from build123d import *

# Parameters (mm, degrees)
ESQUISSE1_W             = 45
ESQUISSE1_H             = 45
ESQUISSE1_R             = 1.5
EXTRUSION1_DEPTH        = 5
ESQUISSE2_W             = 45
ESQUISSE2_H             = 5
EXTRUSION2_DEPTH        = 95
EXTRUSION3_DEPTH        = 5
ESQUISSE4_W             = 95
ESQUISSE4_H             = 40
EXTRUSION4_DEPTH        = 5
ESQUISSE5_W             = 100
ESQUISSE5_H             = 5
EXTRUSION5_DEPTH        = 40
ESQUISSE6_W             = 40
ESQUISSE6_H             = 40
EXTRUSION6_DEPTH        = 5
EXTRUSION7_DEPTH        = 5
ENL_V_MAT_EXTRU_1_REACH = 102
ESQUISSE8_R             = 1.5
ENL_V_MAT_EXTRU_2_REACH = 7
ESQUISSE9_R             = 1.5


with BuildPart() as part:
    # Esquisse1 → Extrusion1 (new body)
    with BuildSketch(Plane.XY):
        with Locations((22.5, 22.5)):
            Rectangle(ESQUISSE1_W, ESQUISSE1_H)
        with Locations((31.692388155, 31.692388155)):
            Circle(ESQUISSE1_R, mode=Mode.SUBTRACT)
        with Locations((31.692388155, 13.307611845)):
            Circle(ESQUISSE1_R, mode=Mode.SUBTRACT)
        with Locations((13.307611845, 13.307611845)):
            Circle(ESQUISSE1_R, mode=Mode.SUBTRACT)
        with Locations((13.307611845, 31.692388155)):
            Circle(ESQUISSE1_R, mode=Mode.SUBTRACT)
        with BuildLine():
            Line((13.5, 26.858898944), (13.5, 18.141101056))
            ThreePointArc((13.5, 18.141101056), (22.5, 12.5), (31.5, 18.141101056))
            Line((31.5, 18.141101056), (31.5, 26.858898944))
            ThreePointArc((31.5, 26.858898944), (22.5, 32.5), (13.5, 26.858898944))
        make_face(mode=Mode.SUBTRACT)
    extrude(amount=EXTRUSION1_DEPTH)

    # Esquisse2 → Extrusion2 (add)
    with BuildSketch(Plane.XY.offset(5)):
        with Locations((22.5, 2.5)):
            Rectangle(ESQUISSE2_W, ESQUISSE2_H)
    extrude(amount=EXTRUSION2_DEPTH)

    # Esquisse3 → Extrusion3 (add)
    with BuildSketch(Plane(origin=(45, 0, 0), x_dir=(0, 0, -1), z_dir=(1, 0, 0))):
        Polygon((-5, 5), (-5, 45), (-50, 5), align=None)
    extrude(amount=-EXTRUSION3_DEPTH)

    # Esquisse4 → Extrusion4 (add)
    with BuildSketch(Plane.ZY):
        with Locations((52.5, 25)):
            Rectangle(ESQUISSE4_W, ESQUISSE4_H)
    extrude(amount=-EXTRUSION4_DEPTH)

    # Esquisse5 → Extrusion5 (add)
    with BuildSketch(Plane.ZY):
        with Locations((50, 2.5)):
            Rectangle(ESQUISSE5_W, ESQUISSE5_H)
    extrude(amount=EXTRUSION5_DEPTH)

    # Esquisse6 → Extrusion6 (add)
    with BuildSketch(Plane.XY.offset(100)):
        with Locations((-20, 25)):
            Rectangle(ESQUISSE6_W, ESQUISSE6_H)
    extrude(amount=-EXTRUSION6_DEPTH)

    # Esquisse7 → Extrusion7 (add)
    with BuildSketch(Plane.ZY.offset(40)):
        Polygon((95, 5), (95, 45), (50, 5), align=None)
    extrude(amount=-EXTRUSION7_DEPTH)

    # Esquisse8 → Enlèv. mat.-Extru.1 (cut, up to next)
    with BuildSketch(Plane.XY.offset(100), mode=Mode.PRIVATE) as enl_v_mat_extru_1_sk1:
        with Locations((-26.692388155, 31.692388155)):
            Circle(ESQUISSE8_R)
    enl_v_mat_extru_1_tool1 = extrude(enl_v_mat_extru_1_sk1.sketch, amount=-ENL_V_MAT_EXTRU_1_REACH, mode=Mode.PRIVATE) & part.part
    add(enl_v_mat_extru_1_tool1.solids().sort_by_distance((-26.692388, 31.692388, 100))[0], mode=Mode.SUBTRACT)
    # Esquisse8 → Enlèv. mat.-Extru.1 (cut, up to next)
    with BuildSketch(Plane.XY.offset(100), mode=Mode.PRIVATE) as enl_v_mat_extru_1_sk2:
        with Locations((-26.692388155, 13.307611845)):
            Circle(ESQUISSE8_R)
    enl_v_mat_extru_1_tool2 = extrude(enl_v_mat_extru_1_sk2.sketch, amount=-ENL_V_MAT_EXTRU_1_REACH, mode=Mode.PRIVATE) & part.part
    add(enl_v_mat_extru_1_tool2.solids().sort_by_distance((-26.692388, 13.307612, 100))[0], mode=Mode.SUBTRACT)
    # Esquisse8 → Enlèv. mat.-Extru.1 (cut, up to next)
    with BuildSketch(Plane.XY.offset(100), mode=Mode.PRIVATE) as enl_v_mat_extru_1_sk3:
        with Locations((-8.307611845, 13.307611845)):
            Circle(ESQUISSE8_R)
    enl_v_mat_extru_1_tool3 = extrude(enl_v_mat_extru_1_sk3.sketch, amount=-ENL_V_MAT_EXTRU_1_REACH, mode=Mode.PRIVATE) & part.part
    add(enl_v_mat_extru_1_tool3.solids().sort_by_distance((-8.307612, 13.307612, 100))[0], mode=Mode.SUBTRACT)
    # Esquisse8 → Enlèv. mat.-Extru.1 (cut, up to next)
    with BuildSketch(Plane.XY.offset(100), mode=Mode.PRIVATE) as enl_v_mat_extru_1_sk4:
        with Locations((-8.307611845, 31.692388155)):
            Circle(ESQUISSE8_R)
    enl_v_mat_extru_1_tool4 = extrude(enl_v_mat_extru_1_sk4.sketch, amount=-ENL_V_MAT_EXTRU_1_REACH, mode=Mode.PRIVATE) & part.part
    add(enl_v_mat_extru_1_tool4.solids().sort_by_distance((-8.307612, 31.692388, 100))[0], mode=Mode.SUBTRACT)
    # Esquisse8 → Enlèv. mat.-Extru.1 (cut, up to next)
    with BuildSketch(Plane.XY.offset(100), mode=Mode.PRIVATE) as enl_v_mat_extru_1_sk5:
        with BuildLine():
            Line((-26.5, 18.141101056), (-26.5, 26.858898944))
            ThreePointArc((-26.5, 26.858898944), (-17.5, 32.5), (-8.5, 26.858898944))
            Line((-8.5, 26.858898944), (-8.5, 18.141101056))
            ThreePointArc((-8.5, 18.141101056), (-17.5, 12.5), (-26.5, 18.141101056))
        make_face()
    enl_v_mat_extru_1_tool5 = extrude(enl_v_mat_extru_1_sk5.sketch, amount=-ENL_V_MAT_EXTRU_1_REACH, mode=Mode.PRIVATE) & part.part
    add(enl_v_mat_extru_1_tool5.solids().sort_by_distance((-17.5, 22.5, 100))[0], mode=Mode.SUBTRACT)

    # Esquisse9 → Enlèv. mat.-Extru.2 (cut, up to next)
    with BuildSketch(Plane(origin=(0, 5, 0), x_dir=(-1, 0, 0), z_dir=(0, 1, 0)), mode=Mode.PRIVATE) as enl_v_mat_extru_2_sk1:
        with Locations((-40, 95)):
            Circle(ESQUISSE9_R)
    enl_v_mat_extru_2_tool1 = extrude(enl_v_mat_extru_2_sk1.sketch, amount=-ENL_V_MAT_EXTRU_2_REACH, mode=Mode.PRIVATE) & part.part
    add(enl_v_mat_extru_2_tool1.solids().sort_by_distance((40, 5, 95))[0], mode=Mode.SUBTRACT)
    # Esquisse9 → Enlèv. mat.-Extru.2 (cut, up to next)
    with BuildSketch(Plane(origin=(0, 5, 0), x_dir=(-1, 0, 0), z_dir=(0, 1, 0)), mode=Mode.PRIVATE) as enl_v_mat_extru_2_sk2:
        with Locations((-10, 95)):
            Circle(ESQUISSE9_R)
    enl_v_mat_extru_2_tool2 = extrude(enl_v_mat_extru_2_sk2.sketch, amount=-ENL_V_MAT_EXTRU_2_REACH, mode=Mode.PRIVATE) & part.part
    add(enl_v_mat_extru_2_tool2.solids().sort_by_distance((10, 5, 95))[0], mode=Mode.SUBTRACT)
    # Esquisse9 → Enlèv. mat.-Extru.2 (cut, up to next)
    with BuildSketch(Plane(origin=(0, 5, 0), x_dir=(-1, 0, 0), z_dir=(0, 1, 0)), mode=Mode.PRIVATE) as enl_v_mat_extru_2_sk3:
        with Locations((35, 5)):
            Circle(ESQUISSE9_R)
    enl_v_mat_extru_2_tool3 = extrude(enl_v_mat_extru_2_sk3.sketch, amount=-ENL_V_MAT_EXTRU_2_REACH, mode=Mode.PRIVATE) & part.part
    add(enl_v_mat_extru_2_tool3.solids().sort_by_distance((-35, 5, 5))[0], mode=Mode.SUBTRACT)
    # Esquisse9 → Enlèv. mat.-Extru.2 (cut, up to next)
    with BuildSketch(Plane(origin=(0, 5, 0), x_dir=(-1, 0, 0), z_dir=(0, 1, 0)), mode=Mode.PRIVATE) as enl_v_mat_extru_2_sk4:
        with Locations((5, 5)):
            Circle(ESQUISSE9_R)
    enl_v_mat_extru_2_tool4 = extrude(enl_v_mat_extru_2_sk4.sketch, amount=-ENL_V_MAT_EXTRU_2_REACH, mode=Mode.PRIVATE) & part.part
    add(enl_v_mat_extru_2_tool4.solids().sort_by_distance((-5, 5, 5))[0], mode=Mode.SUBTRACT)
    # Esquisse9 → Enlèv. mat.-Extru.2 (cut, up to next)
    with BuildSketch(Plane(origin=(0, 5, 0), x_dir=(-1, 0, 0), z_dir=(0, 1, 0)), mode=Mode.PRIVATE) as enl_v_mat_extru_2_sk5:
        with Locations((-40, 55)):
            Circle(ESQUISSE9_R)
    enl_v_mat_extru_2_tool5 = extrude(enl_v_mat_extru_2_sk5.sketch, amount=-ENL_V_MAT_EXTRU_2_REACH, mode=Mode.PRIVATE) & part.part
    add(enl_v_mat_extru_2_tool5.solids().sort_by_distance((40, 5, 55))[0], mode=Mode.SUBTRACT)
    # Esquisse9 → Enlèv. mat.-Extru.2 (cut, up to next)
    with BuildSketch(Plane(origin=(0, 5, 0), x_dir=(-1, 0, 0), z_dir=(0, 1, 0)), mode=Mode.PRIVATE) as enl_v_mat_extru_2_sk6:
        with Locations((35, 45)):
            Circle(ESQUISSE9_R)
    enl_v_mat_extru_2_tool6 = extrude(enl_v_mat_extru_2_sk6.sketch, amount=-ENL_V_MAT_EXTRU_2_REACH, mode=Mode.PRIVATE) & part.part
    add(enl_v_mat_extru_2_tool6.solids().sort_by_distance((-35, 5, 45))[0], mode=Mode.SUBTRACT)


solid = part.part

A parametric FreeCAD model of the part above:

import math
import FreeCAD as App
import Part
import Sketcher
from FreeCAD import Vector
Q = App.Units.Quantity


def add_polygon(sketch, points):
    """Adds a closed chain of lines whose ends are joined by coincident constraints."""
    first, n = sketch.GeometryCount, len(points)
    for a, b in zip(points, points[1:] + points[:1]):
        sketch.addGeometry(Part.LineSegment(App.Vector(*a, 0), App.Vector(*b, 0)), False)
    for i in range(n):
        sketch.addConstraint(Sketcher.Constraint("Coincident", first + i, 2, first + (i + 1) % n, 1))

doc = App.newDocument("Part")
params = doc.addObject("Spreadsheet::Sheet", "Params")
for row, (alias, value) in enumerate([
    ("sketch1_diameter", "3 mm"),
    ("sketch1_radius", "10 mm"),
    ("sketch1_width", "45 mm"),
    ("pad1_length", "5 mm"),
    ("sketch2_width", "45 mm"),
    ("sketch2_height", "5 mm"),
    ("pad2_length", "95 mm"),
    ("sketch3_width", "40 mm"),
    ("sketch3_height", "45 mm"),
    ("pad3_length", "5 mm"),
    ("sketch4_width", "40 mm"),
    ("sketch4_height", "95 mm"),
    ("pad4_length", "5 mm"),
    ("sketch5_width", "5 mm"),
    ("sketch5_height", "100 mm"),
    ("pad5_length", "40 mm"),
    ("sketch6_width", "40 mm"),
    ("pad6_length", "5 mm"),
    ("sketch7_width", "40 mm"),
    ("sketch7_height", "45 mm"),
    ("pad7_length", "5 mm"),
    ("sketch8_diameter", "3 mm"),
    ("sketch9_diameter", "3 mm"),
    ("sketch10_diameter", "3 mm"),
    ("sketch11_diameter", "3 mm"),
    ("sketch12_radius", "10 mm"),
    ("sketch13_diameter", "3 mm"),
    ("sketch14_diameter", "3 mm"),
    ("sketch15_diameter", "3 mm"),
    ("sketch16_diameter", "3 mm"),
    ("sketch17_diameter", "3 mm"),
    ("sketch18_diameter", "3 mm"),
], start=1):
    params.set(f"A{row}", alias)
    params.set(f"B{row}", "=" + value)
    params.setAlias(f"B{row}", alias)

body = doc.addObject("PartDesign::Body", "Body")

# Sketch on XY plane
sketch1 = body.newObject("Sketcher::SketchObject", "Sketch")
sketch1.AttachmentSupport = (doc.getObject("XY_Plane"), [""])
sketch1.MapMode = "FlatFace"
add_polygon(sketch1, [(0, 45), (0, 0), (45, 0), (45, 45)])  # lines 0-3
sketch1.addGeometry(Part.Circle(Vector(13.3, 13.3, 0), Vector(0, 0, 1), 1.5), False)  # 4
sketch1.addGeometry(Part.Circle(Vector(31.7, 13.3, 0), Vector(0, 0, 1), 1.5), False)  # 5
sketch1.addGeometry(Part.Circle(Vector(13.3, 31.7, 0), Vector(0, 0, 1), 1.5), False)  # 6
sketch1.addGeometry(Part.LineSegment(Vector(13.5, 18.1, 0), Vector(13.5, 26.9, 0)), False)  # 7
sketch1.addGeometry(Part.ArcOfCircle(Part.Circle(Vector(22.5, 22.5, 0), Vector(0, 0, 1), 10), math.radians(26), math.radians(154)), False)  # 8
sketch1.addGeometry(Part.LineSegment(Vector(31.5, 26.9, 0), Vector(31.5, 18.1, 0)), False)  # 9
sketch1.addGeometry(Part.ArcOfCircle(Part.Circle(Vector(22.5, 22.5, 0), Vector(0, 0, 1), 10), math.radians(-154), math.radians(-26)), False)  # 10
sketch1.addGeometry(Part.Circle(Vector(31.7, 31.7, 0), Vector(0, 0, 1), 1.5), False)  # 11
sketch1.addConstraint([
    Sketcher.Constraint("Coincident", 7, 2, 8, 2),
    Sketcher.Constraint("Coincident", 8, 1, 9, 1),
    Sketcher.Constraint("Coincident", 9, 2, 10, 2),
    Sketcher.Constraint("Coincident", 10, 1, 7, 1),
    Sketcher.Constraint("Vertical", 0),
    Sketcher.Constraint("Horizontal", 1),
    Sketcher.Constraint("Vertical", 2),
    Sketcher.Constraint("Horizontal", 3),
    Sketcher.Constraint("Vertical", 7),
    Sketcher.Constraint("Vertical", 9),
    Sketcher.Constraint("Coincident", 0, 2, -1, 1),
    Sketcher.Constraint("Coincident", 10, 3, 8, 3),
    Sketcher.Constraint("Equal", 4, 5),
    Sketcher.Constraint("Equal", 5, 6),
    Sketcher.Constraint("Equal", 8, 10),
    Sketcher.Constraint("Equal", 6, 11),
    Sketcher.Constraint("Horizontal", 4, 3, 5, 3),
    Sketcher.Constraint("Horizontal", 6, 3, 11, 3),
    Sketcher.Constraint("Horizontal", 7, 2, 8, 1),
    Sketcher.Constraint("Vertical", 4, 3, 6, 3),
    Sketcher.Constraint("Vertical", 5, 3, 11, 3),
    Sketcher.Constraint("Equal", 3, 0),
    Sketcher.Constraint("Diameter", 4, Q("3 mm")),
    Sketcher.Constraint("Radius", 8, Q("10 mm")),
    Sketcher.Constraint("DistanceX", 1, 1, 1, 2, Q("45 mm")),
    Sketcher.Constraint("DistanceX", 7, 2, 8, 3, Q("9 mm")),
    Sketcher.Constraint("DistanceX", -1, 1, 8, 3, Q("22.5 mm")),
    Sketcher.Constraint("DistanceY", -1, 1, 8, 3, Q("22.5 mm")),
    Sketcher.Constraint("DistanceX", -1, 1, 4, 3, Q("13.307612 mm")),
    Sketcher.Constraint("DistanceY", -1, 1, 4, 3, Q("13.307612 mm")),
    Sketcher.Constraint("DistanceX", -1, 1, 5, 3, Q("31.692388 mm")),
    Sketcher.Constraint("DistanceY", -1, 1, 6, 3, Q("31.692388 mm")),
])
sketch1.setExpression("Constraints[26]", "Params.sketch1_diameter")
sketch1.setExpression("Constraints[27]", "Params.sketch1_radius")
sketch1.setExpression("Constraints[28]", "Params.sketch1_width")
pad1 = body.newObject("PartDesign::Pad", "Pad")
pad1.Profile = sketch1
pad1.setExpression("Length", "Params.pad1_length")

# Sketch on XY plane
sketch2 = body.newObject("Sketcher::SketchObject", "Sketch001")
sketch2.AttachmentSupport = (doc.getObject("XY_Plane"), [""])
sketch2.MapMode = "FlatFace"
sketch2.AttachmentOffset = App.Placement(Vector(0, 0, 5), App.Rotation())
add_polygon(sketch2, [(0, 5), (0, 0), (45, 0), (45, 5)])  # lines 0-3
sketch2.addConstraint([
    Sketcher.Constraint("Vertical", 0),
    Sketcher.Constraint("Horizontal", 1),
    Sketcher.Constraint("Vertical", 2),
    Sketcher.Constraint("Horizontal", 3),
    Sketcher.Constraint("Coincident", 0, 2, -1, 1),
    Sketcher.Constraint("DistanceX", 1, 1, 1, 2, Q("45 mm")),
    Sketcher.Constraint("DistanceY", 0, 2, 0, 1, Q("5 mm")),
])
sketch2.setExpression("Constraints[9]", "Params.sketch2_width")
sketch2.setExpression("Constraints[10]", "Params.sketch2_height")
pad2 = body.newObject("PartDesign::Pad", "Pad001")
pad2.Profile = sketch2
pad2.setExpression("Length", "Params.pad2_length")

# Sketch on YZ plane
sketch3 = body.newObject("Sketcher::SketchObject", "Sketch002")
sketch3.AttachmentSupport = (doc.getObject("YZ_Plane"), [""])
sketch3.MapMode = "FlatFace"
sketch3.AttachmentOffset = App.Placement(Vector(0, 0, 45), App.Rotation())
add_polygon(sketch3, [(5, 5), (45, 5), (5, 50)])  # lines 0-2
sketch3.addConstraint([
    Sketcher.Constraint("Horizontal", 0),
    Sketcher.Constraint("Vertical", 2),
    Sketcher.Constraint("DistanceX", 0, 1, 0, 2, Q("40 mm")),
    Sketcher.Constraint("DistanceY", 2, 2, 2, 1, Q("45 mm")),
    Sketcher.Constraint("DistanceX", -1, 1, 0, 2, Q("45 mm")),
    Sketcher.Constraint("DistanceY", -1, 1, 0, 2, Q("5 mm")),
])
sketch3.setExpression("Constraints[5]", "Params.sketch3_width")
sketch3.setExpression("Constraints[6]", "Params.sketch3_height")
pad3 = body.newObject("PartDesign::Pad", "Pad002")
pad3.Profile = sketch3
pad3.setExpression("Length", "Params.pad3_length")
pad3.Reversed = True

# Sketch on YZ plane
sketch4 = body.newObject("Sketcher::SketchObject", "Sketch003")
sketch4.AttachmentSupport = (doc.getObject("YZ_Plane"), [""])
sketch4.MapMode = "FlatFace"
add_polygon(sketch4, [(45, 5), (5, 5), (5, 100), (45, 100)])  # lines 0-3
sketch4.addConstraint([
    Sketcher.Constraint("Horizontal", 0),
    Sketcher.Constraint("Vertical", 1),
    Sketcher.Constraint("Horizontal", 2),
    Sketcher.Constraint("Vertical", 3),
    Sketcher.Constraint("DistanceX", 0, 2, 0, 1, Q("40 mm")),
    Sketcher.Constraint("DistanceY", 1, 1, 1, 2, Q("95 mm")),
    Sketcher.Constraint("DistanceX", -1, 1, 0, 2, Q("5 mm")),
    Sketcher.Constraint("DistanceY", -1, 1, 0, 2, Q("5 mm")),
])
sketch4.setExpression("Constraints[8]", "Params.sketch4_width")
sketch4.setExpression("Constraints[9]", "Params.sketch4_height")
pad4 = body.newObject("PartDesign::Pad", "Pad003")
pad4.Profile = sketch4
pad4.setExpression("Length", "Params.pad4_length")

# Sketch on YZ plane
sketch5 = body.newObject("Sketcher::SketchObject", "Sketch004")
sketch5.AttachmentSupport = (doc.getObject("YZ_Plane"), [""])
sketch5.MapMode = "FlatFace"
add_polygon(sketch5, [(5, 0), (0, 0), (0, 100), (5, 100)])  # lines 0-3
sketch5.addConstraint([
    Sketcher.Constraint("Horizontal", 0),
    Sketcher.Constraint("Vertical", 1),
    Sketcher.Constraint("Horizontal", 2),
    Sketcher.Constraint("Vertical", 3),
    Sketcher.Constraint("Coincident", 0, 2, -1, 1),
    Sketcher.Constraint("DistanceX", 0, 2, 0, 1, Q("5 mm")),
    Sketcher.Constraint("DistanceY", 1, 1, 1, 2, Q("100 mm")),
])
sketch5.setExpression("Constraints[9]", "Params.sketch5_width")
sketch5.setExpression("Constraints[10]", "Params.sketch5_height")
pad5 = body.newObject("PartDesign::Pad", "Pad004")
pad5.Profile = sketch5
pad5.setExpression("Length", "Params.pad5_length")
pad5.Reversed = True

# Sketch on XY plane
sketch6 = body.newObject("Sketcher::SketchObject", "Sketch005")
sketch6.AttachmentSupport = (doc.getObject("XY_Plane"), [""])
sketch6.MapMode = "FlatFace"
sketch6.AttachmentOffset = App.Placement(Vector(0, 0, 100), App.Rotation())
add_polygon(sketch6, [(-40, 45), (-40, 5), (0, 5), (0, 45)])  # lines 0-3
sketch6.addConstraint([
    Sketcher.Constraint("Vertical", 0),
    Sketcher.Constraint("Horizontal", 1),
    Sketcher.Constraint("Vertical", 2),
    Sketcher.Constraint("Horizontal", 3),
    Sketcher.Constraint("PointOnObject", 1, 2, -2),
    Sketcher.Constraint("Equal", 3, 0),
    Sketcher.Constraint("DistanceX", 1, 1, 1, 2, Q("40 mm")),
    Sketcher.Constraint("DistanceY", -1, 1, 0, 2, Q("5 mm")),
])
sketch6.setExpression("Constraints[10]", "Params.sketch6_width")
pad6 = body.newObject("PartDesign::Pad", "Pad005")
pad6.Profile = sketch6
pad6.setExpression("Length", "Params.pad6_length")
pad6.Reversed = True

# Sketch on YZ plane
sketch7 = body.newObject("Sketcher::SketchObject", "Sketch006")
sketch7.AttachmentSupport = (doc.getObject("YZ_Plane"), [""])
sketch7.MapMode = "FlatFace"
sketch7.AttachmentOffset = App.Placement(Vector(0, 0, -40), App.Rotation())
add_polygon(sketch7, [(5, 95), (45, 95), (5, 50)])  # lines 0-2
sketch7.addConstraint([
    Sketcher.Constraint("Horizontal", 0),
    Sketcher.Constraint("Vertical", 2),
    Sketcher.Constraint("DistanceX", 0, 1, 0, 2, Q("40 mm")),
    Sketcher.Constraint("DistanceY", 2, 1, 2, 2, Q("45 mm")),
    Sketcher.Constraint("DistanceX", -1, 1, 0, 2, Q("45 mm")),
    Sketcher.Constraint("DistanceY", -1, 1, 0, 2, Q("95 mm")),
])
sketch7.setExpression("Constraints[5]", "Params.sketch7_width")
sketch7.setExpression("Constraints[6]", "Params.sketch7_height")
pad7 = body.newObject("PartDesign::Pad", "Pad006")
pad7.Profile = sketch7
pad7.setExpression("Length", "Params.pad7_length")

# Sketch on XY plane
sketch8 = body.newObject("Sketcher::SketchObject", "Sketch007")
sketch8.AttachmentSupport = (doc.getObject("XY_Plane"), [""])
sketch8.MapMode = "FlatFace"
sketch8.AttachmentOffset = App.Placement(Vector(0, 0, 100), App.Rotation())
sketch8.addGeometry(Part.Circle(Vector(-26.7, 31.7, 0), Vector(0, 0, 1), 1.5), False)
sketch8.addConstraint([
    Sketcher.Constraint("Diameter", 0, Q("3 mm")),
    Sketcher.Constraint("DistanceX", 0, 3, -1, 1, Q("26.692388 mm")),
    Sketcher.Constraint("DistanceY", -1, 1, 0, 3, Q("31.692388 mm")),
])
sketch8.setExpression("Constraints[0]", "Params.sketch8_diameter")
pocket1 = body.newObject("PartDesign::Pocket", "Pocket")
pocket1.Profile = sketch8
pocket1.Type = "UpToFirst"

# Sketch on XY plane
sketch9 = body.newObject("Sketcher::SketchObject", "Sketch008")
sketch9.AttachmentSupport = (doc.getObject("XY_Plane"), [""])
sketch9.MapMode = "FlatFace"
sketch9.AttachmentOffset = App.Placement(Vector(0, 0, 100), App.Rotation())
sketch9.addGeometry(Part.Circle(Vector(-26.7, 13.3, 0), Vector(0, 0, 1), 1.5), False)
sketch9.addConstraint([
    Sketcher.Constraint("Diameter", 0, Q("3 mm")),
    Sketcher.Constraint("DistanceX", 0, 3, -1, 1, Q("26.692388 mm")),
    Sketcher.Constraint("DistanceY", -1, 1, 0, 3, Q("13.307612 mm")),
])
sketch9.setExpression("Constraints[0]", "Params.sketch9_diameter")
pocket2 = body.newObject("PartDesign::Pocket", "Pocket001")
pocket2.Profile = sketch9
pocket2.Type = "UpToFirst"

# Sketch on XY plane
sketch10 = body.newObject("Sketcher::SketchObject", "Sketch009")
sketch10.AttachmentSupport = (doc.getObject("XY_Plane"), [""])
sketch10.MapMode = "FlatFace"
sketch10.AttachmentOffset = App.Placement(Vector(0, 0, 100), App.Rotation())
sketch10.addGeometry(Part.Circle(Vector(-8.3, 13.3, 0), Vector(0, 0, 1), 1.5), False)
sketch10.addConstraint([
    Sketcher.Constraint("Diameter", 0, Q("3 mm")),
    Sketcher.Constraint("DistanceX", 0, 3, -1, 1, Q("8.307612 mm")),
    Sketcher.Constraint("DistanceY", -1, 1, 0, 3, Q("13.307612 mm")),
])
sketch10.setExpression("Constraints[0]", "Params.sketch10_diameter")
pocket3 = body.newObject("PartDesign::Pocket", "Pocket002")
pocket3.Profile = sketch10
pocket3.Type = "UpToFirst"

# Sketch on XY plane
sketch11 = body.newObject("Sketcher::SketchObject", "Sketch010")
sketch11.AttachmentSupport = (doc.getObject("XY_Plane"), [""])
sketch11.MapMode = "FlatFace"
sketch11.AttachmentOffset = App.Placement(Vector(0, 0, 100), App.Rotation())
sketch11.addGeometry(Part.Circle(Vector(-8.3, 31.7, 0), Vector(0, 0, 1), 1.5), False)
sketch11.addConstraint([
    Sketcher.Constraint("Diameter", 0, Q("3 mm")),
    Sketcher.Constraint("DistanceX", 0, 3, -1, 1, Q("8.307612 mm")),
    Sketcher.Constraint("DistanceY", -1, 1, 0, 3, Q("31.692388 mm")),
])
sketch11.setExpression("Constraints[0]", "Params.sketch11_diameter")
pocket4 = body.newObject("PartDesign::Pocket", "Pocket003")
pocket4.Profile = sketch11
pocket4.Type = "UpToFirst"

# Sketch on XY plane
sketch12 = body.newObject("Sketcher::SketchObject", "Sketch011")
sketch12.AttachmentSupport = (doc.getObject("XY_Plane"), [""])
sketch12.MapMode = "FlatFace"
sketch12.AttachmentOffset = App.Placement(Vector(0, 0, 100), App.Rotation())
sketch12.addGeometry([
    Part.LineSegment(Vector(-26, 27, 0), Vector(-26, 18, 0)),
    Part.ArcOfCircle(Part.Circle(Vector(-18, 22, 0), Vector(0, 0, 1), 10), math.radians(-154), math.radians(-26)),
    Part.LineSegment(Vector(-8, 18, 0), Vector(-8, 27, 0)),
    Part.ArcOfCircle(Part.Circle(Vector(-18, 22, 0), Vector(0, 0, 1), 10), math.radians(26), math.radians(154)),
], False)
sketch12.addConstraint([
    Sketcher.Constraint("Coincident", 0, 2, 1, 1),
    Sketcher.Constraint("Coincident", 1, 2, 2, 1),
    Sketcher.Constraint("Coincident", 2, 2, 3, 1),
    Sketcher.Constraint("Coincident", 3, 2, 0, 1),
    Sketcher.Constraint("Vertical", 0),
    Sketcher.Constraint("Vertical", 2),
    Sketcher.Constraint("Coincident", 3, 3, 1, 3),
    Sketcher.Constraint("Equal", 1, 3),
    Sketcher.Constraint("Horizontal", 0, 2, 1, 2),
    Sketcher.Constraint("Radius", 1, Q("10 mm")),
    Sketcher.Constraint("DistanceX", 0, 2, 1, 3, Q("9 mm")),
    Sketcher.Constraint("DistanceX", 1, 3, -1, 1, Q("17.5 mm")),
    Sketcher.Constraint("DistanceY", -1, 1, 1, 3, Q("22.5 mm")),
])
sketch12.setExpression("Constraints[9]", "Params.sketch12_radius")
pocket5 = body.newObject("PartDesign::Pocket", "Pocket004")
pocket5.Profile = sketch12
pocket5.Type = "UpToFirst"

# Sketch on XZ plane
sketch13 = body.newObject("Sketcher::SketchObject", "Sketch012")
sketch13.AttachmentSupport = (doc.getObject("XZ_Plane"), [""])
sketch13.MapMode = "FlatFace"
sketch13.AttachmentOffset = App.Placement(Vector(0, 0, -5), App.Rotation())
sketch13.addGeometry(Part.Circle(Vector(40, 95, 0), Vector(0, 0, 1), 1.5), False)
sketch13.addConstraint([
    Sketcher.Constraint("Diameter", 0, Q("3 mm")),
    Sketcher.Constraint("DistanceX", -1, 1, 0, 3, Q("40 mm")),
    Sketcher.Constraint("DistanceY", -1, 1, 0, 3, Q("95 mm")),
])
sketch13.setExpression("Constraints[0]", "Params.sketch13_diameter")
pocket6 = body.newObject("PartDesign::Pocket", "Pocket005")
pocket6.Profile = sketch13
pocket6.Type = "UpToFirst"
pocket6.Reversed = True

# Sketch on XZ plane
sketch14 = body.newObject("Sketcher::SketchObject", "Sketch013")
sketch14.AttachmentSupport = (doc.getObject("XZ_Plane"), [""])
sketch14.MapMode = "FlatFace"
sketch14.AttachmentOffset = App.Placement(Vector(0, 0, -5), App.Rotation())
sketch14.addGeometry(Part.Circle(Vector(10, 95, 0), Vector(0, 0, 1), 1.5), False)
sketch14.addConstraint([
    Sketcher.Constraint("Diameter", 0, Q("3 mm")),
    Sketcher.Constraint("DistanceX", -1, 1, 0, 3, Q("10 mm")),
    Sketcher.Constraint("DistanceY", -1, 1, 0, 3, Q("95 mm")),
])
sketch14.setExpression("Constraints[0]", "Params.sketch14_diameter")
pocket7 = body.newObject("PartDesign::Pocket", "Pocket006")
pocket7.Profile = sketch14
pocket7.Type = "UpToFirst"
pocket7.Reversed = True

# Sketch on XZ plane
sketch15 = body.newObject("Sketcher::SketchObject", "Sketch014")
sketch15.AttachmentSupport = (doc.getObject("XZ_Plane"), [""])
sketch15.MapMode = "FlatFace"
sketch15.AttachmentOffset = App.Placement(Vector(0, 0, -5), App.Rotation())
sketch15.addGeometry(Part.Circle(Vector(-35, 5, 0), Vector(0, 0, 1), 1.5), False)
sketch15.addConstraint([
    Sketcher.Constraint("Diameter", 0, Q("3 mm")),
    Sketcher.Constraint("DistanceX", 0, 3, -1, 1, Q("35 mm")),
    Sketcher.Constraint("DistanceY", -1, 1, 0, 3, Q("5 mm")),
])
sketch15.setExpression("Constraints[0]", "Params.sketch15_diameter")
pocket8 = body.newObject("PartDesign::Pocket", "Pocket007")
pocket8.Profile = sketch15
pocket8.Type = "UpToFirst"
pocket8.Reversed = True

# Sketch on XZ plane
sketch16 = body.newObject("Sketcher::SketchObject", "Sketch015")
sketch16.AttachmentSupport = (doc.getObject("XZ_Plane"), [""])
sketch16.MapMode = "FlatFace"
sketch16.AttachmentOffset = App.Placement(Vector(0, 0, -5), App.Rotation())
sketch16.addGeometry(Part.Circle(Vector(-5, 5, 0), Vector(0, 0, 1), 1.5), False)
sketch16.addConstraint([
    Sketcher.Constraint("Diameter", 0, Q("3 mm")),
    Sketcher.Constraint("DistanceX", 0, 3, -1, 1, Q("5 mm")),
    Sketcher.Constraint("DistanceY", -1, 1, 0, 3, Q("5 mm")),
])
sketch16.setExpression("Constraints[0]", "Params.sketch16_diameter")
pocket9 = body.newObject("PartDesign::Pocket", "Pocket008")
pocket9.Profile = sketch16
pocket9.Type = "UpToFirst"
pocket9.Reversed = True

# Sketch on XZ plane
sketch17 = body.newObject("Sketcher::SketchObject", "Sketch016")
sketch17.AttachmentSupport = (doc.getObject("XZ_Plane"), [""])
sketch17.MapMode = "FlatFace"
sketch17.AttachmentOffset = App.Placement(Vector(0, 0, -5), App.Rotation())
sketch17.addGeometry(Part.Circle(Vector(40, 55, 0), Vector(0, 0, 1), 1.5), False)
sketch17.addConstraint([
    Sketcher.Constraint("Diameter", 0, Q("3 mm")),
    Sketcher.Constraint("DistanceX", -1, 1, 0, 3, Q("40 mm")),
    Sketcher.Constraint("DistanceY", -1, 1, 0, 3, Q("55 mm")),
])
sketch17.setExpression("Constraints[0]", "Params.sketch17_diameter")
pocket10 = body.newObject("PartDesign::Pocket", "Pocket009")
pocket10.Profile = sketch17
pocket10.Type = "UpToFirst"
pocket10.Reversed = True

# Sketch on XZ plane
sketch18 = body.newObject("Sketcher::SketchObject", "Sketch017")
sketch18.AttachmentSupport = (doc.getObject("XZ_Plane"), [""])
sketch18.MapMode = "FlatFace"
sketch18.AttachmentOffset = App.Placement(Vector(0, 0, -5), App.Rotation())
sketch18.addGeometry(Part.Circle(Vector(-35, 45, 0), Vector(0, 0, 1), 1.5), False)
sketch18.addConstraint([
    Sketcher.Constraint("Diameter", 0, Q("3 mm")),
    Sketcher.Constraint("DistanceX", 0, 3, -1, 1, Q("35 mm")),
    Sketcher.Constraint("DistanceY", -1, 1, 0, 3, Q("45 mm")),
])
sketch18.setExpression("Constraints[0]", "Params.sketch18_diameter")
pocket11 = body.newObject("PartDesign::Pocket", "Pocket010")
pocket11.Profile = sketch18
pocket11.Type = "UpToFirst"
pocket11.Reversed = True

doc.recompute()
